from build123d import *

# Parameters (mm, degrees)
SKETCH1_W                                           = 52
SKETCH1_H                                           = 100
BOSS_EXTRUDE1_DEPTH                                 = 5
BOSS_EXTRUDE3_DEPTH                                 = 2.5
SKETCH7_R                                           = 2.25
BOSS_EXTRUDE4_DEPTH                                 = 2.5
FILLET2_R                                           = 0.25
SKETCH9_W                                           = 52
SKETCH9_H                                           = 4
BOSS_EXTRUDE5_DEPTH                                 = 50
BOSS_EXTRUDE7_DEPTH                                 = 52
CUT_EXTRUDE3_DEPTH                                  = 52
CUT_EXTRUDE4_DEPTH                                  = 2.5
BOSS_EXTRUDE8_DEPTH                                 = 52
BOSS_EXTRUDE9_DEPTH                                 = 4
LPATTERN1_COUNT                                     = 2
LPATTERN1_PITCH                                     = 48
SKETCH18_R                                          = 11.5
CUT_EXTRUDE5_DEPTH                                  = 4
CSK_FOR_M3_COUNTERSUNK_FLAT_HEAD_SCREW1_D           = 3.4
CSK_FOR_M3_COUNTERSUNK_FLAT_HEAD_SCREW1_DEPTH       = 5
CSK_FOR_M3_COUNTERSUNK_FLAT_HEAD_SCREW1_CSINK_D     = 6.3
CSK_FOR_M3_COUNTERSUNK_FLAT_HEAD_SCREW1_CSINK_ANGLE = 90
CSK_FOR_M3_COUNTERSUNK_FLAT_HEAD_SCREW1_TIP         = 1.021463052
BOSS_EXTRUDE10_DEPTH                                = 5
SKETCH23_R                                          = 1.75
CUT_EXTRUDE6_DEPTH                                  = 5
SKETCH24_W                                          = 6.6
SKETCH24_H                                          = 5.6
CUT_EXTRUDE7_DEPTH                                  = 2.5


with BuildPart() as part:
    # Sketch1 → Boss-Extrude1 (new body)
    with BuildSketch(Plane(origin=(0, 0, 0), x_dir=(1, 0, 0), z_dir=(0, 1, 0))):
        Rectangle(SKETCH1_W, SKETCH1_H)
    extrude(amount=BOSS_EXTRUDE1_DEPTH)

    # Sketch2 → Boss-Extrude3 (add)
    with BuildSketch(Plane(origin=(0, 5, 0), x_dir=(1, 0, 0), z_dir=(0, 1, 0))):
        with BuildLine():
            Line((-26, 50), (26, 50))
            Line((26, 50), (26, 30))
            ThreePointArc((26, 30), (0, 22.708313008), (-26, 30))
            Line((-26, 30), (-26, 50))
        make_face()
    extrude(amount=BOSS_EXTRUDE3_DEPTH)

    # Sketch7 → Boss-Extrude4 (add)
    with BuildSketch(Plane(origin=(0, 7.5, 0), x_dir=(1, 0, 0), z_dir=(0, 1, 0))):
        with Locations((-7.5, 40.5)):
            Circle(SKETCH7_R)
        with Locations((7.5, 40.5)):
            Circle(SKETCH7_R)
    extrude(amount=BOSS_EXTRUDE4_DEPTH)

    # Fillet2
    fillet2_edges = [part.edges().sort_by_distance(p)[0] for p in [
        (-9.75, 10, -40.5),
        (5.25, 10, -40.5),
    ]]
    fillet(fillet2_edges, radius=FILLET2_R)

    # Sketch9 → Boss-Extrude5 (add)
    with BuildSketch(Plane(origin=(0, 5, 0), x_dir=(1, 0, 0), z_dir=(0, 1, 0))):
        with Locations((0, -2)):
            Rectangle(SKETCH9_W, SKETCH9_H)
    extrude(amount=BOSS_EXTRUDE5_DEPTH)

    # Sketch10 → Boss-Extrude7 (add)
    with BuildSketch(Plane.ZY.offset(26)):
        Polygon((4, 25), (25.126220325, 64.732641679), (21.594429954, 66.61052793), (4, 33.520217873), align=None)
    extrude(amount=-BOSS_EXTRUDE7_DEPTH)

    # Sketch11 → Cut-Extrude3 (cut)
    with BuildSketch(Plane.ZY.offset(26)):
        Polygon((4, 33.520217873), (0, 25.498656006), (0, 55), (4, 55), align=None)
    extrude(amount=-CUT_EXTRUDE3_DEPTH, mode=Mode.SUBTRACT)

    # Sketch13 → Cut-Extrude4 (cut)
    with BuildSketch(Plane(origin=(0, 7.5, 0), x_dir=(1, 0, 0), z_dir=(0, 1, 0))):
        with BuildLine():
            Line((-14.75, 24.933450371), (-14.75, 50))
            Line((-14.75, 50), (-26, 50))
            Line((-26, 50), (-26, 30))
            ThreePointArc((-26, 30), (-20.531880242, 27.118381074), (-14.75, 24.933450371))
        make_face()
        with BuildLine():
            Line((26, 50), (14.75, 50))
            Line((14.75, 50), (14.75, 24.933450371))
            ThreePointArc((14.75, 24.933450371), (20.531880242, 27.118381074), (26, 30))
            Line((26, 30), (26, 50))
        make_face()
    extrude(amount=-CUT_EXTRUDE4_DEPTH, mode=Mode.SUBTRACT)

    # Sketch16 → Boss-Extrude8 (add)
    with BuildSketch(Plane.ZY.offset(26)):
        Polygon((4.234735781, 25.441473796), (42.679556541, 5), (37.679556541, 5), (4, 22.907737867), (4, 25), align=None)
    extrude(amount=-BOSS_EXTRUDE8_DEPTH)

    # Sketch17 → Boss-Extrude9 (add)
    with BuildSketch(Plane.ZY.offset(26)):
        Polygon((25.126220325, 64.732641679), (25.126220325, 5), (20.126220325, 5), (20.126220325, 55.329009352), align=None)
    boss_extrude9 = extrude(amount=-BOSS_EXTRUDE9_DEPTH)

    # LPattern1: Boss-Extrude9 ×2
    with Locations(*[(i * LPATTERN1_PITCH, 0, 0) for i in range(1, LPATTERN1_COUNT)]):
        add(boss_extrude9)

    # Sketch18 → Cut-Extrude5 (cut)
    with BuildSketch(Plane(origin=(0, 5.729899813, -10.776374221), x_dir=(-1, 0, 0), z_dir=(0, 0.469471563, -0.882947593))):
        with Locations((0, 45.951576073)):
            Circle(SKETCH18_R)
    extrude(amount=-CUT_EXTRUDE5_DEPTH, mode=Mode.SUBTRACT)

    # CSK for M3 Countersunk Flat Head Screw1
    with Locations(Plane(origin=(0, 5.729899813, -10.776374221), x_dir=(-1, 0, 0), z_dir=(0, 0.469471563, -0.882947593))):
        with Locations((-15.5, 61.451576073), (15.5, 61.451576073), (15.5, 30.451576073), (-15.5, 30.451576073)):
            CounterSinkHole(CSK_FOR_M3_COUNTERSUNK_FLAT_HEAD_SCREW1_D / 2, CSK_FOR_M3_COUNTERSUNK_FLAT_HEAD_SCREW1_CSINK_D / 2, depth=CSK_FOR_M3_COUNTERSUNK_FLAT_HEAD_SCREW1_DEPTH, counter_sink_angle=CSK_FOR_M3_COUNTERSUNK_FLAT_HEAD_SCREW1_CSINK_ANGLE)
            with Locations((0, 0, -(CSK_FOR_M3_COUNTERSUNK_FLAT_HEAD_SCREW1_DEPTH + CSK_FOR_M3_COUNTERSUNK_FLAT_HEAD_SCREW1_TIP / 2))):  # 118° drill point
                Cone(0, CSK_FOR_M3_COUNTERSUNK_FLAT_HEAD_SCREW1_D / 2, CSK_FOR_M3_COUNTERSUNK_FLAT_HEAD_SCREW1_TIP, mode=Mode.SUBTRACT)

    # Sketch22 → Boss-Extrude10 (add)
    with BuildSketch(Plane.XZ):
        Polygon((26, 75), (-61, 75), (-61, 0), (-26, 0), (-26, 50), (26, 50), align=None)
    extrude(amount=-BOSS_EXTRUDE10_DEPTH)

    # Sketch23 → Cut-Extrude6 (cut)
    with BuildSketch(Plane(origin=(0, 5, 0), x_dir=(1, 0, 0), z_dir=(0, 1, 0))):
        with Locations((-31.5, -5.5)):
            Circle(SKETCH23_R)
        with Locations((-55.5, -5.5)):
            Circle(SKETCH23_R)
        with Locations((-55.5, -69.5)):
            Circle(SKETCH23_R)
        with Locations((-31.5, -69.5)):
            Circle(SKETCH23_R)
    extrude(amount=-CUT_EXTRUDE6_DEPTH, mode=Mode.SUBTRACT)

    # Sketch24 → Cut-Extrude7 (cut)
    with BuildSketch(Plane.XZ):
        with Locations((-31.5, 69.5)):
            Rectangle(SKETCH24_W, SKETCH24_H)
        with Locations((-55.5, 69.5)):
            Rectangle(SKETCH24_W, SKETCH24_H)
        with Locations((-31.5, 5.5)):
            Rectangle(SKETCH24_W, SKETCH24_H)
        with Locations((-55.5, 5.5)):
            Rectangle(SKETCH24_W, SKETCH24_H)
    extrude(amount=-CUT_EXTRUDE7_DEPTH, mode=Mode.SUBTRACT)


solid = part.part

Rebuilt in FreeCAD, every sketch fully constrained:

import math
import FreeCAD as App
import Part
import Sketcher
Q = App.Units.Quantity


def edges_at(feature, points):
    """Names of the edges that pass closest to the given points."""
    edges = feature.Shape.Edges
    near = lambda p: min(range(len(edges)), key=lambda i: edges[i].distToShape(Part.Vertex(*p))[0])
    return sorted({f"Edge{near(p) + 1}" for p in points})

doc = App.newDocument("Part")
body = doc.addObject("PartDesign::Body", "Body")

sketch1 = body.newObject("Sketcher::SketchObject", "Sketch")
sketch1.AttachmentSupport = (doc.getObject("XZ_Plane"), [""])
sketch1.MapMode = "FlatFace"
sketch1.addGeometry(Part.LineSegment(App.Vector(-26, -50, 0), App.Vector(-26, 50, 0)), False)
sketch1.addGeometry(Part.LineSegment(App.Vector(-26, 50, 0), App.Vector(26, 50, 0)), False)
sketch1.addGeometry(Part.LineSegment(App.Vector(26, 50, 0), App.Vector(26, -50, 0)), False)
sketch1.addGeometry(Part.LineSegment(App.Vector(26, -50, 0), App.Vector(-26, -50, 0)), False)
sketch1.addConstraint(Sketcher.Constraint("Coincident", 0, 2, 1, 1))
sketch1.addConstraint(Sketcher.Constraint("Coincident", 1, 2, 2, 1))
sketch1.addConstraint(Sketcher.Constraint("Coincident", 2, 2, 3, 1))
sketch1.addConstraint(Sketcher.Constraint("Coincident", 3, 2, 0, 1))
sketch1.addConstraint(Sketcher.Constraint("Vertical", 0))
sketch1.addConstraint(Sketcher.Constraint("Horizontal", 1))
sketch1.addConstraint(Sketcher.Constraint("Vertical", 2))
sketch1.addConstraint(Sketcher.Constraint("Horizontal", 3))
sketch1.addConstraint(Sketcher.Constraint("Symmetric", 0, 2, 2, 2, -1, 1))
sketch1.addConstraint(Sketcher.Constraint("DistanceX", 1, 1, 1, 2, 52.0))
sketch1.addConstraint(Sketcher.Constraint("DistanceY", 0, 1, 0, 2, 100.0))
pad1 = body.newObject("PartDesign::Pad", "Pad")
pad1.Profile = sketch1
pad1.Length = 5
pad1.Reversed = True

sketch2 = body.newObject("Sketcher::SketchObject", "Sketch001")
sketch2.AttachmentSupport = (doc.getObject("XZ_Plane"), [""])
sketch2.MapMode = "FlatFace"
sketch2.AttachmentOffset = App.Placement(App.Vector(0, 0, -5), App.Rotation())
sketch2.addGeometry(Part.LineSegment(App.Vector(26, -50, 0), App.Vector(-26, -50, 0)), False)
sketch2.addGeometry(Part.LineSegment(App.Vector(-26, -50, 0), App.Vector(-26, -30, 0)), False)
sketch2.addGeometry(Part.ArcOfCircle(Part.Circle(App.Vector(0, -72.708313, 0), App.Vector(0, 0, 1), 50), math.radians(58.667749), math.radians(121.332251)), False)
sketch2.addGeometry(Part.LineSegment(App.Vector(26, -30, 0), App.Vector(26, -50, 0)), False)
sketch2.addConstraint(Sketcher.Constraint("Coincident", 0, 2, 1, 1))
sketch2.addConstraint(Sketcher.Constraint("Coincident", 1, 2, 2, 2))
sketch2.addConstraint(Sketcher.Constraint("Coincident", 2, 1, 3, 1))
sketch2.addConstraint(Sketcher.Constraint("Coincident", 3, 2, 0, 1))
sketch2.addConstraint(Sketcher.Constraint("Horizontal", 0))
sketch2.addConstraint(Sketcher.Constraint("Vertical", 1))
sketch2.addConstraint(Sketcher.Constraint("Vertical", 3))
sketch2.addConstraint(Sketcher.Constraint("Symmetric", 1, 2, 2, 1, -2))
sketch2.addConstraint(Sketcher.Constraint("Radius", 2, 50.0))
sketch2.addConstraint(Sketcher.Constraint("DistanceX", 0, 2, 0, 1, 52.0))
sketch2.addConstraint(Sketcher.Constraint("DistanceY", 1, 1, 1, 2, 20.0))
sketch2.addConstraint(Sketcher.Constraint("DistanceY", 0, 2, -1, 1, 50.0))
pad2 = body.newObject("PartDesign::Pad", "Pad001")
pad2.Profile = sketch2
pad2.Length = 2.5
pad2.Reversed = True

sketch3 = body.newObject("Sketcher::SketchObject", "Sketch002")
sketch3.AttachmentSupport = (doc.getObject("XZ_Plane"), [""])
sketch3.MapMode = "FlatFace"
sketch3.AttachmentOffset = App.Placement(App.Vector(0, 0, -7.5), App.Rotation())
sketch3.addGeometry(Part.Circle(App.Vector(-7.5, -40.5, 0), App.Vector(0, 0, 1), 2.25), False)
sketch3.addGeometry(Part.Circle(App.Vector(7.5, -40.5, 0), App.Vector(0, 0, 1), 2.25), False)
sketch3.addConstraint(Sketcher.Constraint("Equal", 0, 1))
sketch3.addConstraint(Sketcher.Constraint("Symmetric", 0, 3, 1, 3, -2))
sketch3.addConstraint(Sketcher.Constraint("Diameter", 0, 4.5))
sketch3.addConstraint(Sketcher.Constraint("DistanceX", 0, 3, 1, 3, 15.0))
sketch3.addConstraint(Sketcher.Constraint("DistanceY", 0, 3, -1, 1, 40.5))
pad3 = body.newObject("PartDesign::Pad", "Pad002")
pad3.Profile = sketch3
pad3.Length = 2.5
pad3.Reversed = True
doc.recompute()

fillet = body.newObject("PartDesign::Fillet", "Fillet")
fillet.Base = (pad3, edges_at(pad3, [(-9.75, 10, -40.5), (5.25, 10, -40.5)]))
fillet.Radius = 0.25

sketch4 = body.newObject("Sketcher::SketchObject", "Sketch003")
sketch4.AttachmentSupport = (doc.getObject("XZ_Plane"), [""])
sketch4.MapMode = "FlatFace"
sketch4.AttachmentOffset = App.Placement(App.Vector(0, 0, -5), App.Rotation())
sketch4.addGeometry(Part.LineSegment(App.Vector(-26, 0, 0), App.Vector(-26, 4, 0)), False)
sketch4.addGeometry(Part.LineSegment(App.Vector(-26, 4, 0), App.Vector(26, 4, 0)), False)
sketch4.addGeometry(Part.LineSegment(App.Vector(26, 4, 0), App.Vector(26, 0, 0)), False)
sketch4.addGeometry(Part.LineSegment(App.Vector(26, 0, 0), App.Vector(-26, 0, 0)), False)
sketch4.addConstraint(Sketcher.Constraint("Coincident", 0, 2, 1, 1))
sketch4.addConstraint(Sketcher.Constraint("Coincident", 1, 2, 2, 1))
sketch4.addConstraint(Sketcher.Constraint("Coincident", 2, 2, 3, 1))
sketch4.addConstraint(Sketcher.Constraint("Coincident", 3, 2, 0, 1))
sketch4.addConstraint(Sketcher.Constraint("Vertical", 0))
sketch4.addConstraint(Sketcher.Constraint("Horizontal", 1))
sketch4.addConstraint(Sketcher.Constraint("Vertical", 2))
sketch4.addConstraint(Sketcher.Constraint("Horizontal", 3))
sketch4.addConstraint(Sketcher.Constraint("Symmetric", 2, 2, 3, 2, -1, 1))
sketch4.addConstraint(Sketcher.Constraint("DistanceX", 1, 1, 1, 2, 52.0))
sketch4.addConstraint(Sketcher.Constraint("DistanceY", 0, 1, 0, 2, 4.0))
pad4 = body.newObject("PartDesign::Pad", "Pad003")
pad4.Profile = sketch4
pad4.Length = 50
pad4.Reversed = True

sketch5 = body.newObject("Sketcher::SketchObject", "Sketch004")
sketch5.AttachmentSupport = (doc.getObject("YZ_Plane"), [""])
sketch5.MapMode = "FlatFace"
sketch5.AttachmentOffset = App.Placement(App.Vector(0, 0, -26), App.Rotation())
sketch5.addGeometry(Part.LineSegment(App.Vector(25, 4, 0), App.Vector(64.732642, 25.12622, 0)), False)
sketch5.addGeometry(Part.LineSegment(App.Vector(64.732642, 25.12622, 0), App.Vector(66.610528, 21.59443, 0)), False)
sketch5.addGeometry(Part.LineSegment(App.Vector(66.610528, 21.59443, 0), App.Vector(33.520218, 4, 0)), False)
sketch5.addGeometry(Part.LineSegment(App.Vector(33.520218, 4, 0), App.Vector(25, 4, 0)), False)
sketch5.addConstraint(Sketcher.Constraint("Coincident", 0, 2, 1, 1))
sketch5.addConstraint(Sketcher.Constraint("Coincident", 1, 2, 2, 1))
sketch5.addConstraint(Sketcher.Constraint("Coincident", 2, 2, 3, 1))
sketch5.addConstraint(Sketcher.Constraint("Coincident", 3, 2, 0, 1))
sketch5.addConstraint(Sketcher.Constraint("Horizontal", 3))
sketch5.addConstraint(Sketcher.Constraint("Perpendicular", 0, 1))
sketch5.addConstraint(Sketcher.Constraint("Perpendicular", 1, 2))
sketch5.addConstraint(Sketcher.Constraint("Angle", 0, Q("28 deg")))
sketch5.addConstraint(Sketcher.Constraint("Distance", 0, 45.0))
sketch5.addConstraint(Sketcher.Constraint("Distance", 1, 4.0))
sketch5.addConstraint(Sketcher.Constraint("DistanceY", -1, 1, 2, 2, 4.0))
sketch5.addConstraint(Sketcher.Constraint("DistanceX", -1, 1, 3, 2, 25.0))
pad5 = body.newObject("PartDesign::Pad", "Pad004")
pad5.Profile = sketch5
pad5.Length = 52

sketch6 = body.newObject("Sketcher::SketchObject", "Sketch005")
sketch6.AttachmentSupport = (doc.getObject("YZ_Plane"), [""])
sketch6.MapMode = "FlatFace"
sketch6.AttachmentOffset = App.Placement(App.Vector(0, 0, -26), App.Rotation())
sketch6.addGeometry(Part.LineSegment(App.Vector(25.498656, 0, 0), App.Vector(33.520218, 4, 0)), False)
sketch6.addGeometry(Part.LineSegment(App.Vector(33.520218, 4, 0), App.Vector(55, 4, 0)), False)
sketch6.addGeometry(Part.LineSegment(App.Vector(55, 4, 0), App.Vector(55, 0, 0)), False)
sketch6.addGeometry(Part.LineSegment(App.Vector(55, 0, 0), App.Vector(25.498656, 0, 0)), False)
sketch6.addConstraint(Sketcher.Constraint("Coincident", 0, 2, 1, 1))
sketch6.addConstraint(Sketcher.Constraint("Coincident", 1, 2, 2, 1))
sketch6.addConstraint(Sketcher.Constraint("Coincident", 2, 2, 3, 1))
sketch6.addConstraint(Sketcher.Constraint("Coincident", 3, 2, 0, 1))
sketch6.addConstraint(Sketcher.Constraint("Horizontal", 1))
sketch6.addConstraint(Sketcher.Constraint("Vertical", 2))
sketch6.addConstraint(Sketcher.Constraint("Horizontal", 3))
sketch6.addConstraint(Sketcher.Constraint("PointOnObject", 2, 2, -1))
sketch6.addConstraint(Sketcher.Constraint("DistanceY", 2, 2, 2, 1, 4.0))
sketch6.addConstraint(Sketcher.Constraint("DistanceX", -1, 1, 1, 2, 55.0))
sketch6.addConstraint(Sketcher.Constraint("DistanceX", 1, 1, 1, 2, 21.479782))
sketch6.addConstraint(Sketcher.Constraint("DistanceX", 3, 2, 3, 1, 29.501344))
pocket1 = body.newObject("PartDesign::Pocket", "Pocket")
pocket1.Profile = sketch6
pocket1.Length = 52
pocket1.Reversed = True

sketch7 = body.newObject("Sketcher::SketchObject", "Sketch006")
sketch7.AttachmentSupport = (doc.getObject("XZ_Plane"), [""])
sketch7.MapMode = "FlatFace"
sketch7.AttachmentOffset = App.Placement(App.Vector(0, 0, -7.5), App.Rotation())
sketch7.addGeometry(Part.LineSegment(App.Vector(-14.75, -24.93345, 0), App.Vector(-14.75, -50, 0)), False)
sketch7.addGeometry(Part.LineSegment(App.Vector(-14.75, -50, 0), App.Vector(-26, -50, 0)), False)
sketch7.addGeometry(Part.LineSegment(App.Vector(-26, -50, 0), App.Vector(-26, -30, 0)), False)
sketch7.addGeometry(Part.ArcOfCircle(Part.Circle(App.Vector(0, -72.708313, 0), App.Vector(0, 0, 1), 50), math.radians(107.157537), math.radians(121.332252)), False)
sketch7.addGeometry(Part.LineSegment(App.Vector(26, -50, 0), App.Vector(14.75, -50, 0)), False)
sketch7.addGeometry(Part.LineSegment(App.Vector(14.75, -50, 0), App.Vector(14.75, -24.93345, 0)), False)
sketch7.addGeometry(Part.ArcOfCircle(Part.Circle(App.Vector(0, -72.708313, 0), App.Vector(0, 0, 1), 50), math.radians(58.667748), math.radians(72.842463)), False)
sketch7.addGeometry(Part.LineSegment(App.Vector(26, -30, 0), App.Vector(26, -50, 0)), False)
sketch7.addConstraint(Sketcher.Constraint("Coincident", 0, 2, 1, 1))
sketch7.addConstraint(Sketcher.Constraint("Coincident", 1, 2, 2, 1))
sketch7.addConstraint(Sketcher.Constraint("Coincident", 2, 2, 3, 2))
sketch7.addConstraint(Sketcher.Constraint("Coincident", 3, 1, 0, 1))
sketch7.addConstraint(Sketcher.Constraint("Coincident", 4, 2, 5, 1))
sketch7.addConstraint(Sketcher.Constraint("Coincident", 5, 2, 6, 2))
sketch7.addConstraint(Sketcher.Constraint("Coincident", 6, 1, 7, 1))
sketch7.addConstraint(Sketcher.Constraint("Coincident", 7, 2, 4, 1))
sketch7.addConstraint(Sketcher.Constraint("Vertical", 0))
sketch7.addConstraint(Sketcher.Constraint("Horizontal", 1))
sketch7.addConstraint(Sketcher.Constraint("Vertical", 2))
sketch7.addConstraint(Sketcher.Constraint("Horizontal", 4))
sketch7.addConstraint(Sketcher.Constraint("Vertical", 5))
sketch7.addConstraint(Sketcher.Constraint("Vertical", 7))
sketch7.addConstraint(Sketcher.Constraint("Coincident", 6, 3, 3, 3))
sketch7.addConstraint(Sketcher.Constraint("Equal", 3, 6))
sketch7.addConstraint(Sketcher.Constraint("Symmetric", 0, 2, 4, 2, -2))
sketch7.addConstraint(Sketcher.Constraint("Symmetric", 2, 2, 6, 1, -2))
sketch7.addConstraint(Sketcher.Constraint("Radius", 3, 50.0))
sketch7.addConstraint(Sketcher.Constraint("DistanceY", 2, 1, 2, 2, 20.0))
sketch7.addConstraint(Sketcher.Constraint("DistanceY", 0, 2, -1, 1, 50.0))
sketch7.addConstraint(Sketcher.Constraint("DistanceX", 1, 2, -1, 1, 26.0))
sketch7.addConstraint(Sketcher.Constraint("DistanceX", 1, 2, 1, 1, 11.25))
pocket2 = body.newObject("PartDesign::Pocket", "Pocket001")
pocket2.Profile = sketch7
pocket2.Length = 2.5
pocket2.Reversed = True

sketch8 = body.newObject("Sketcher::SketchObject", "Sketch007")
sketch8.AttachmentSupport = (doc.getObject("YZ_Plane"), [""])
sketch8.MapMode = "FlatFace"
sketch8.AttachmentOffset = App.Placement(App.Vector(0, 0, -26), App.Rotation())
sketch8.addGeometry(Part.LineSegment(App.Vector(5, 42.679557, 0), App.Vector(25.441474, 4.234736, 0)), False)
sketch8.addGeometry(Part.LineSegment(App.Vector(25.441474, 4.234736, 0), App.Vector(25, 4, 0)), False)
sketch8.addGeometry(Part.LineSegment(App.Vector(25, 4, 0), App.Vector(22.907738, 4, 0)), False)
sketch8.addGeometry(Part.LineSegment(App.Vector(22.907738, 4, 0), App.Vector(5, 37.679557, 0)), False)
sketch8.addGeometry(Part.LineSegment(App.Vector(5, 37.679557, 0), App.Vector(5, 42.679557, 0)), False)
sketch8.addConstraint(Sketcher.Constraint("Coincident", 0, 2, 1, 1))
sketch8.addConstraint(Sketcher.Constraint("Coincident", 1, 2, 2, 1))
sketch8.addConstraint(Sketcher.Constraint("Coincident", 2, 2, 3, 1))
sketch8.addConstraint(Sketcher.Constraint("Coincident", 3, 2, 4, 1))
sketch8.addConstraint(Sketcher.Constraint("Coincident", 4, 2, 0, 1))
sketch8.addConstraint(Sketcher.Constraint("Horizontal", 2))
sketch8.addConstraint(Sketcher.Constraint("Vertical", 4))
sketch8.addConstraint(Sketcher.Constraint("Perpendicular", 0, 1))
sketch8.addConstraint(Sketcher.Constraint("Perpendicular", 1, 3))
sketch8.addConstraint(Sketcher.Constraint("DistanceY", 4, 1, 4, 2, 5.0))
sketch8.addConstraint(Sketcher.Constraint("Angle", 0, Q("-62 deg")))
sketch8.addConstraint(Sketcher.Constraint("DistanceX", -1, 1, 1, 2, 25.0))
sketch8.addConstraint(Sketcher.Constraint("DistanceY", -1, 1, 1, 2, 4.0))
sketch8.addConstraint(Sketcher.Constraint("DistanceX", -1, 1, 3, 2, 5.0))
sketch8.addConstraint(Sketcher.Constraint("Distance", 1, 0.5))
pad6 = body.newObject("PartDesign::Pad", "Pad005")
pad6.Profile = sketch8
pad6.Length = 52

sketch9 = body.newObject("Sketcher::SketchObject", "Sketch008")
sketch9.AttachmentSupport = (doc.getObject("YZ_Plane"), [""])
sketch9.MapMode = "FlatFace"
sketch9.AttachmentOffset = App.Placement(App.Vector(0, 0, -26), App.Rotation())
sketch9.addGeometry(Part.LineSegment(App.Vector(5, 25.12622, 0), App.Vector(64.732642, 25.12622, 0)), False)
sketch9.addGeometry(Part.LineSegment(App.Vector(64.732642, 25.12622, 0), App.Vector(55.329009, 20.12622, 0)), False)
sketch9.addGeometry(Part.LineSegment(App.Vector(55.329009, 20.12622, 0), App.Vector(5, 20.12622, 0)), False)
sketch9.addGeometry(Part.LineSegment(App.Vector(5, 20.12622, 0), App.Vector(5, 25.12622, 0)), False)
sketch9.addConstraint(Sketcher.Constraint("Coincident", 0, 2, 1, 1))
sketch9.addConstraint(Sketcher.Constraint("Coincident", 1, 2, 2, 1))
sketch9.addConstraint(Sketcher.Constraint("Coincident", 2, 2, 3, 1))
sketch9.addConstraint(Sketcher.Constraint("Coincident", 3, 2, 0, 1))
sketch9.addConstraint(Sketcher.Constraint("Horizontal", 0))
sketch9.addConstraint(Sketcher.Constraint("Horizontal", 2))
sketch9.addConstraint(Sketcher.Constraint("Vertical", 3))
sketch9.addConstraint(Sketcher.Constraint("DistanceY", 3, 1, 3, 2, 5.0))
sketch9.addConstraint(Sketcher.Constraint("Angle", 1, Q("-152 deg")))
sketch9.addConstraint(Sketcher.Constraint("DistanceX", -1, 1, 2, 2, 5.0))
sketch9.addConstraint(Sketcher.Constraint("DistanceX", 0, 1, 0, 2, 59.732642))
sketch9.addConstraint(Sketcher.Constraint("DistanceY", -1, 1, 0, 2, 25.12622))
pad7 = body.newObject("PartDesign::Pad", "Pad006")
pad7.Profile = sketch9
pad7.Length = 4
doc.recompute()

linearpattern = body.newObject("PartDesign::LinearPattern", "LinearPattern")
linearpattern.Originals = [pad7]
linearpattern.Direction = (doc.getObject("X_Axis"), [""])
linearpattern.Mode = "offset"
linearpattern.Offset = 48
linearpattern.Occurrences = 2
body.Tip = linearpattern

sketch10 = body.newObject("Sketcher::SketchObject", "Sketch009")
sketch10.Placement = App.Placement(App.Vector(0, 5.7299, -10.776374), App.Rotation(App.Vector(-1, 0, 0), App.Vector(0, 0.882947593, 0.469471563), App.Vector(0, 0.469471563, -0.882947593), "ZXY"))
sketch10.addGeometry(Part.Circle(App.Vector(0, 45.951576, 0), App.Vector(0, 0, 1), 11.5), False)
sketch10.addConstraint(Sketcher.Constraint("PointOnObject", 0, 3, -2))
sketch10.addConstraint(Sketcher.Constraint("Diameter", 0, 23.0))
sketch10.addConstraint(Sketcher.Constraint("DistanceY", -1, 1, 0, 3, 45.951576))
pocket3 = body.newObject("PartDesign::Pocket", "Pocket002")
pocket3.Profile = sketch10
pocket3.Length = 4

sketch11 = body.newObject("Sketcher::SketchObject", "Sketch010")
sketch11.Placement = App.Placement(App.Vector(0, 5.7299, -10.776374), App.Rotation(App.Vector(-1, 0, 0), App.Vector(0, 0.882947593, 0.469471563), App.Vector(0, 0.469471563, -0.882947593), "ZXY"))
sketch11.addGeometry(Part.Circle(App.Vector(-15.5, 61.451576, 0), App.Vector(0, 0, 1), 1.7), False)
sketch11.addGeometry(Part.Circle(App.Vector(15.5, 61.451576, 0), App.Vector(0, 0, 1), 1.7), False)
sketch11.addGeometry(Part.Circle(App.Vector(15.5, 30.451576, 0), App.Vector(0, 0, 1), 1.7), False)
sketch11.addGeometry(Part.Circle(App.Vector(-15.5, 30.451576, 0), App.Vector(0, 0, 1), 1.7), False)
sketch11.addConstraint(Sketcher.Constraint("Equal", 0, 1))
sketch11.addConstraint(Sketcher.Constraint("Equal", 1, 2))
sketch11.addConstraint(Sketcher.Constraint("Equal", 2, 3))
sketch11.addConstraint(Sketcher.Constraint("Symmetric", 0, 3, 1, 3, -2))
sketch11.addConstraint(Sketcher.Constraint("Symmetric", 2, 3, 3, 3, -2))
sketch11.addConstraint(Sketcher.Constraint("Vertical", 1, 3, 2, 3))
sketch11.addConstraint(Sketcher.Constraint("Diameter", 0, 3.4))
sketch11.addConstraint(Sketcher.Constraint("DistanceX", 0, 3, 1, 3, 31.0))
sketch11.addConstraint(Sketcher.Constraint("DistanceY", 2, 3, 1, 3, 31.0))
sketch11.addConstraint(Sketcher.Constraint("DistanceY", -1, 1, 0, 3, 61.451576))
doc.recompute()
hole = body.newObject("PartDesign::Hole", "Hole")
hole.Profile = sketch11
hole.ThreadType = "None"
hole.Diameter = 3.4
hole.DepthType = "Dimension"
hole.Depth = 5
hole.DrillPoint = "Angled"
hole.DrillPointAngle = 118
hole.HoleCutType = "Countersink"
hole.HoleCutDiameter = 6.3
hole.HoleCutCountersinkAngle = 90

sketch12 = body.newObject("Sketcher::SketchObject", "Sketch011")
sketch12.AttachmentSupport = (doc.getObject("XZ_Plane"), [""])
sketch12.MapMode = "FlatFace"
sketch12.addGeometry(Part.LineSegment(App.Vector(26, 75, 0), App.Vector(-61, 75, 0)), False)
sketch12.addGeometry(Part.LineSegment(App.Vector(-61, 75, 0), App.Vector(-61, 0, 0)), False)
sketch12.addGeometry(Part.LineSegment(App.Vector(-61, 0, 0), App.Vector(-26, 0, 0)), False)
sketch12.addGeometry(Part.LineSegment(App.Vector(-26, 0, 0), App.Vector(-26, 50, 0)), False)
sketch12.addGeometry(Part.LineSegment(App.Vector(-26, 50, 0), App.Vector(26, 50, 0)), False)
sketch12.addGeometry(Part.LineSegment(App.Vector(26, 50, 0), App.Vector(26, 75, 0)), False)
sketch12.addConstraint(Sketcher.Constraint("Coincident", 0, 2, 1, 1))
sketch12.addConstraint(Sketcher.Constraint("Coincident", 1, 2, 2, 1))
sketch12.addConstraint(Sketcher.Constraint("Coincident", 2, 2, 3, 1))
sketch12.addConstraint(Sketcher.Constraint("Coincident", 3, 2, 4, 1))
sketch12.addConstraint(Sketcher.Constraint("Coincident", 4, 2, 5, 1))
sketch12.addConstraint(Sketcher.Constraint("Coincident", 5, 2, 0, 1))
sketch12.addConstraint(Sketcher.Constraint("Horizontal", 0))
sketch12.addConstraint(Sketcher.Constraint("Vertical", 1))
sketch12.addConstraint(Sketcher.Constraint("Horizontal", 2))
sketch12.addConstraint(Sketcher.Constraint("Vertical", 3))
sketch12.addConstraint(Sketcher.Constraint("Horizontal", 4))
sketch12.addConstraint(Sketcher.Constraint("Vertical", 5))
sketch12.addConstraint(Sketcher.Constraint("PointOnObject", 1, 2, -1))
sketch12.addConstraint(Sketcher.Constraint("DistanceX", 0, 2, 0, 1, 87.0))
sketch12.addConstraint(Sketcher.Constraint("DistanceX", 2, 1, 2, 2, 35.0))
sketch12.addConstraint(Sketcher.Constraint("DistanceY", 1, 2, 1, 1, 75.0))
sketch12.addConstraint(Sketcher.Constraint("DistanceY", 3, 1, 3, 2, 50.0))
sketch12.addConstraint(Sketcher.Constraint("DistanceX", 0, 2, -1, 1, 61.0))
pad8 = body.newObject("PartDesign::Pad", "Pad007")
pad8.Profile = sketch12
pad8.Length = 5
pad8.Reversed = True

sketch13 = body.newObject("Sketcher::SketchObject", "Sketch012")
sketch13.AttachmentSupport = (doc.getObject("XZ_Plane"), [""])
sketch13.MapMode = "FlatFace"
sketch13.AttachmentOffset = App.Placement(App.Vector(0, 0, -5), App.Rotation())
sketch13.addGeometry(Part.Circle(App.Vector(-31.5, 5.5, 0), App.Vector(0, 0, 1), 1.75), False)
sketch13.addGeometry(Part.Circle(App.Vector(-55.5, 5.5, 0), App.Vector(0, 0, 1), 1.75), False)
sketch13.addGeometry(Part.Circle(App.Vector(-55.5, 69.5, 0), App.Vector(0, 0, 1), 1.75), False)
sketch13.addGeometry(Part.Circle(App.Vector(-31.5, 69.5, 0), App.Vector(0, 0, 1), 1.75), False)
sketch13.addConstraint(Sketcher.Constraint("Equal", 0, 1))
sketch13.addConstraint(Sketcher.Constraint("Equal", 1, 2))
sketch13.addConstraint(Sketcher.Constraint("Equal", 2, 3))
sketch13.addConstraint(Sketcher.Constraint("Horizontal", 0, 3, 1, 3))
sketch13.addConstraint(Sketcher.Constraint("Horizontal", 2, 3, 3, 3))
sketch13.addConstraint(Sketcher.Constraint("Vertical", 1, 3, 2, 3))
sketch13.addConstraint(Sketcher.Constraint("Vertical", 0, 3, 3, 3))
sketch13.addConstraint(Sketcher.Constraint("Diameter", 0, 3.5))
sketch13.addConstraint(Sketcher.Constraint("DistanceX", 1, 3, 0, 3, 24.0))
sketch13.addConstraint(Sketcher.Constraint("DistanceY", 1, 3, 2, 3, 64.0))
sketch13.addConstraint(Sketcher.Constraint("DistanceX", 0, 3, -1, 1, 31.5))
sketch13.addConstraint(Sketcher.Constraint("DistanceY", -1, 1, 0, 3, 5.5))
pocket4 = body.newObject("PartDesign::Pocket", "Pocket003")
pocket4.Profile = sketch13
pocket4.Length = 5
pocket4.Reversed = True

sketch14 = body.newObject("Sketcher::SketchObject", "Sketch013")
sketch14.AttachmentSupport = (doc.getObject("XZ_Plane"), [""])
sketch14.MapMode = "FlatFace"
sketch14.addGeometry(Part.LineSegment(App.Vector(-34.8, 72.3, 0), App.Vector(-34.8, 66.7, 0)), False)
sketch14.addGeometry(Part.LineSegment(App.Vector(-34.8, 66.7, 0), App.Vector(-28.2, 66.7, 0)), False)
sketch14.addGeometry(Part.LineSegment(App.Vector(-28.2, 66.7, 0), App.Vector(-28.2, 72.3, 0)), False)
sketch14.addGeometry(Part.LineSegment(App.Vector(-28.2, 72.3, 0), App.Vector(-34.8, 72.3, 0)), False)
sketch14.addGeometry(Part.LineSegment(App.Vector(-58.8, 72.3, 0), App.Vector(-58.8, 66.7, 0)), False)
sketch14.addGeometry(Part.LineSegment(App.Vector(-58.8, 66.7, 0), App.Vector(-52.2, 66.7, 0)), False)
sketch14.addGeometry(Part.LineSegment(App.Vector(-52.2, 66.7, 0), App.Vector(-52.2, 72.3, 0)), False)
sketch14.addGeometry(Part.LineSegment(App.Vector(-52.2, 72.3, 0), App.Vector(-58.8, 72.3, 0)), False)
sketch14.addGeometry(Part.LineSegment(App.Vector(-34.8, 8.3, 0), App.Vector(-34.8, 2.7, 0)), False)
sketch14.addGeometry(Part.LineSegment(App.Vector(-34.8, 2.7, 0), App.Vector(-28.2, 2.7, 0)), False)
sketch14.addGeometry(Part.LineSegment(App.Vector(-28.2, 2.7, 0), App.Vector(-28.2, 8.3, 0)), False)
sketch14.addGeometry(Part.LineSegment(App.Vector(-28.2, 8.3, 0), App.Vector(-34.8, 8.3, 0)), False)
sketch14.addGeometry(Part.LineSegment(App.Vector(-58.8, 8.3, 0), App.Vector(-58.8, 2.7, 0)), False)
sketch14.addGeometry(Part.LineSegment(App.Vector(-58.8, 2.7, 0), App.Vector(-52.2, 2.7, 0)), False)
sketch14.addGeometry(Part.LineSegment(App.Vector(-52.2, 2.7, 0), App.Vector(-52.2, 8.3, 0)), False)
sketch14.addGeometry(Part.LineSegment(App.Vector(-52.2, 8.3, 0), App.Vector(-58.8, 8.3, 0)), False)
sketch14.addConstraint(Sketcher.Constraint("Coincident", 0, 2, 1, 1))
sketch14.addConstraint(Sketcher.Constraint("Coincident", 1, 2, 2, 1))
sketch14.addConstraint(Sketcher.Constraint("Coincident", 2, 2, 3, 1))
sketch14.addConstraint(Sketcher.Constraint("Coincident", 3, 2, 0, 1))
sketch14.addConstraint(Sketcher.Constraint("Coincident", 4, 2, 5, 1))
sketch14.addConstraint(Sketcher.Constraint("Coincident", 5, 2, 6, 1))
sketch14.addConstraint(Sketcher.Constraint("Coincident", 6, 2, 7, 1))
sketch14.addConstraint(Sketcher.Constraint("Coincident", 7, 2, 4, 1))
sketch14.addConstraint(Sketcher.Constraint("Coincident", 8, 2, 9, 1))
sketch14.addConstraint(Sketcher.Constraint("Coincident", 9, 2, 10, 1))
sketch14.addConstraint(Sketcher.Constraint("Coincident", 10, 2, 11, 1))
sketch14.addConstraint(Sketcher.Constraint("Coincident", 11, 2, 8, 1))
sketch14.addConstraint(Sketcher.Constraint("Coincident", 12, 2, 13, 1))
sketch14.addConstraint(Sketcher.Constraint("Coincident", 13, 2, 14, 1))
sketch14.addConstraint(Sketcher.Constraint("Coincident", 14, 2, 15, 1))
sketch14.addConstraint(Sketcher.Constraint("Coincident", 15, 2, 12, 1))
sketch14.addConstraint(Sketcher.Constraint("Vertical", 0))
sketch14.addConstraint(Sketcher.Constraint("Horizontal", 1))
sketch14.addConstraint(Sketcher.Constraint("Vertical", 2))
sketch14.addConstraint(Sketcher.Constraint("Horizontal", 3))
sketch14.addConstraint(Sketcher.Constraint("Vertical", 4))
sketch14.addConstraint(Sketcher.Constraint("Horizontal", 5))
sketch14.addConstraint(Sketcher.Constraint("Vertical", 6))
sketch14.addConstraint(Sketcher.Constraint("Horizontal", 7))
sketch14.addConstraint(Sketcher.Constraint("Vertical", 8))
sketch14.addConstraint(Sketcher.Constraint("Horizontal", 9))
sketch14.addConstraint(Sketcher.Constraint("Vertical", 10))
sketch14.addConstraint(Sketcher.Constraint("Horizontal", 11))
sketch14.addConstraint(Sketcher.Constraint("Vertical", 12))
sketch14.addConstraint(Sketcher.Constraint("Horizontal", 13))
sketch14.addConstraint(Sketcher.Constraint("Vertical", 14))
sketch14.addConstraint(Sketcher.Constraint("Horizontal", 15))
sketch14.addConstraint(Sketcher.Constraint("Horizontal", 1, 2, 4, 2))
sketch14.addConstraint(Sketcher.Constraint("Horizontal", 3, 2, 6, 2))
sketch14.addConstraint(Sketcher.Constraint("Horizontal", 9, 2, 12, 2))
sketch14.addConstraint(Sketcher.Constraint("Horizontal", 11, 2, 14, 2))
sketch14.addConstraint(Sketcher.Constraint("Vertical", 3, 2, 8, 2))
sketch14.addConstraint(Sketcher.Constraint("Vertical", 2, 2, 9, 2))
sketch14.addConstraint(Sketcher.Constraint("Vertical", 7, 2, 12, 2))
sketch14.addConstraint(Sketcher.Constraint("Vertical", 6, 2, 13, 2))
sketch14.addConstraint(Sketcher.Constraint("Equal", 3, 5))
sketch14.addConstraint(Sketcher.Constraint("Equal", 6, 8))
sketch14.addConstraint(Sketcher.Constraint("DistanceX", 1, 1, 1, 2, 6.6))
sketch14.addConstraint(Sketcher.Constraint("DistanceY", 0, 2, 0, 1, 5.6))
sketch14.addConstraint(Sketcher.Constraint("DistanceX", 4, 2, 0, 2, 24.0))
sketch14.addConstraint(Sketcher.Constraint("DistanceY", 8, 2, 0, 2, 64.0))
sketch14.addConstraint(Sketcher.Constraint("DistanceX", 0, 2, -1, 1, 34.8))
sketch14.addConstraint(Sketcher.Constraint("DistanceY", -1, 1, 0, 2, 66.7))
pocket5 = body.newObject("PartDesign::Pocket", "Pocket004")
pocket5.Profile = sketch14
pocket5.Length = 2.5

doc.recompute()
